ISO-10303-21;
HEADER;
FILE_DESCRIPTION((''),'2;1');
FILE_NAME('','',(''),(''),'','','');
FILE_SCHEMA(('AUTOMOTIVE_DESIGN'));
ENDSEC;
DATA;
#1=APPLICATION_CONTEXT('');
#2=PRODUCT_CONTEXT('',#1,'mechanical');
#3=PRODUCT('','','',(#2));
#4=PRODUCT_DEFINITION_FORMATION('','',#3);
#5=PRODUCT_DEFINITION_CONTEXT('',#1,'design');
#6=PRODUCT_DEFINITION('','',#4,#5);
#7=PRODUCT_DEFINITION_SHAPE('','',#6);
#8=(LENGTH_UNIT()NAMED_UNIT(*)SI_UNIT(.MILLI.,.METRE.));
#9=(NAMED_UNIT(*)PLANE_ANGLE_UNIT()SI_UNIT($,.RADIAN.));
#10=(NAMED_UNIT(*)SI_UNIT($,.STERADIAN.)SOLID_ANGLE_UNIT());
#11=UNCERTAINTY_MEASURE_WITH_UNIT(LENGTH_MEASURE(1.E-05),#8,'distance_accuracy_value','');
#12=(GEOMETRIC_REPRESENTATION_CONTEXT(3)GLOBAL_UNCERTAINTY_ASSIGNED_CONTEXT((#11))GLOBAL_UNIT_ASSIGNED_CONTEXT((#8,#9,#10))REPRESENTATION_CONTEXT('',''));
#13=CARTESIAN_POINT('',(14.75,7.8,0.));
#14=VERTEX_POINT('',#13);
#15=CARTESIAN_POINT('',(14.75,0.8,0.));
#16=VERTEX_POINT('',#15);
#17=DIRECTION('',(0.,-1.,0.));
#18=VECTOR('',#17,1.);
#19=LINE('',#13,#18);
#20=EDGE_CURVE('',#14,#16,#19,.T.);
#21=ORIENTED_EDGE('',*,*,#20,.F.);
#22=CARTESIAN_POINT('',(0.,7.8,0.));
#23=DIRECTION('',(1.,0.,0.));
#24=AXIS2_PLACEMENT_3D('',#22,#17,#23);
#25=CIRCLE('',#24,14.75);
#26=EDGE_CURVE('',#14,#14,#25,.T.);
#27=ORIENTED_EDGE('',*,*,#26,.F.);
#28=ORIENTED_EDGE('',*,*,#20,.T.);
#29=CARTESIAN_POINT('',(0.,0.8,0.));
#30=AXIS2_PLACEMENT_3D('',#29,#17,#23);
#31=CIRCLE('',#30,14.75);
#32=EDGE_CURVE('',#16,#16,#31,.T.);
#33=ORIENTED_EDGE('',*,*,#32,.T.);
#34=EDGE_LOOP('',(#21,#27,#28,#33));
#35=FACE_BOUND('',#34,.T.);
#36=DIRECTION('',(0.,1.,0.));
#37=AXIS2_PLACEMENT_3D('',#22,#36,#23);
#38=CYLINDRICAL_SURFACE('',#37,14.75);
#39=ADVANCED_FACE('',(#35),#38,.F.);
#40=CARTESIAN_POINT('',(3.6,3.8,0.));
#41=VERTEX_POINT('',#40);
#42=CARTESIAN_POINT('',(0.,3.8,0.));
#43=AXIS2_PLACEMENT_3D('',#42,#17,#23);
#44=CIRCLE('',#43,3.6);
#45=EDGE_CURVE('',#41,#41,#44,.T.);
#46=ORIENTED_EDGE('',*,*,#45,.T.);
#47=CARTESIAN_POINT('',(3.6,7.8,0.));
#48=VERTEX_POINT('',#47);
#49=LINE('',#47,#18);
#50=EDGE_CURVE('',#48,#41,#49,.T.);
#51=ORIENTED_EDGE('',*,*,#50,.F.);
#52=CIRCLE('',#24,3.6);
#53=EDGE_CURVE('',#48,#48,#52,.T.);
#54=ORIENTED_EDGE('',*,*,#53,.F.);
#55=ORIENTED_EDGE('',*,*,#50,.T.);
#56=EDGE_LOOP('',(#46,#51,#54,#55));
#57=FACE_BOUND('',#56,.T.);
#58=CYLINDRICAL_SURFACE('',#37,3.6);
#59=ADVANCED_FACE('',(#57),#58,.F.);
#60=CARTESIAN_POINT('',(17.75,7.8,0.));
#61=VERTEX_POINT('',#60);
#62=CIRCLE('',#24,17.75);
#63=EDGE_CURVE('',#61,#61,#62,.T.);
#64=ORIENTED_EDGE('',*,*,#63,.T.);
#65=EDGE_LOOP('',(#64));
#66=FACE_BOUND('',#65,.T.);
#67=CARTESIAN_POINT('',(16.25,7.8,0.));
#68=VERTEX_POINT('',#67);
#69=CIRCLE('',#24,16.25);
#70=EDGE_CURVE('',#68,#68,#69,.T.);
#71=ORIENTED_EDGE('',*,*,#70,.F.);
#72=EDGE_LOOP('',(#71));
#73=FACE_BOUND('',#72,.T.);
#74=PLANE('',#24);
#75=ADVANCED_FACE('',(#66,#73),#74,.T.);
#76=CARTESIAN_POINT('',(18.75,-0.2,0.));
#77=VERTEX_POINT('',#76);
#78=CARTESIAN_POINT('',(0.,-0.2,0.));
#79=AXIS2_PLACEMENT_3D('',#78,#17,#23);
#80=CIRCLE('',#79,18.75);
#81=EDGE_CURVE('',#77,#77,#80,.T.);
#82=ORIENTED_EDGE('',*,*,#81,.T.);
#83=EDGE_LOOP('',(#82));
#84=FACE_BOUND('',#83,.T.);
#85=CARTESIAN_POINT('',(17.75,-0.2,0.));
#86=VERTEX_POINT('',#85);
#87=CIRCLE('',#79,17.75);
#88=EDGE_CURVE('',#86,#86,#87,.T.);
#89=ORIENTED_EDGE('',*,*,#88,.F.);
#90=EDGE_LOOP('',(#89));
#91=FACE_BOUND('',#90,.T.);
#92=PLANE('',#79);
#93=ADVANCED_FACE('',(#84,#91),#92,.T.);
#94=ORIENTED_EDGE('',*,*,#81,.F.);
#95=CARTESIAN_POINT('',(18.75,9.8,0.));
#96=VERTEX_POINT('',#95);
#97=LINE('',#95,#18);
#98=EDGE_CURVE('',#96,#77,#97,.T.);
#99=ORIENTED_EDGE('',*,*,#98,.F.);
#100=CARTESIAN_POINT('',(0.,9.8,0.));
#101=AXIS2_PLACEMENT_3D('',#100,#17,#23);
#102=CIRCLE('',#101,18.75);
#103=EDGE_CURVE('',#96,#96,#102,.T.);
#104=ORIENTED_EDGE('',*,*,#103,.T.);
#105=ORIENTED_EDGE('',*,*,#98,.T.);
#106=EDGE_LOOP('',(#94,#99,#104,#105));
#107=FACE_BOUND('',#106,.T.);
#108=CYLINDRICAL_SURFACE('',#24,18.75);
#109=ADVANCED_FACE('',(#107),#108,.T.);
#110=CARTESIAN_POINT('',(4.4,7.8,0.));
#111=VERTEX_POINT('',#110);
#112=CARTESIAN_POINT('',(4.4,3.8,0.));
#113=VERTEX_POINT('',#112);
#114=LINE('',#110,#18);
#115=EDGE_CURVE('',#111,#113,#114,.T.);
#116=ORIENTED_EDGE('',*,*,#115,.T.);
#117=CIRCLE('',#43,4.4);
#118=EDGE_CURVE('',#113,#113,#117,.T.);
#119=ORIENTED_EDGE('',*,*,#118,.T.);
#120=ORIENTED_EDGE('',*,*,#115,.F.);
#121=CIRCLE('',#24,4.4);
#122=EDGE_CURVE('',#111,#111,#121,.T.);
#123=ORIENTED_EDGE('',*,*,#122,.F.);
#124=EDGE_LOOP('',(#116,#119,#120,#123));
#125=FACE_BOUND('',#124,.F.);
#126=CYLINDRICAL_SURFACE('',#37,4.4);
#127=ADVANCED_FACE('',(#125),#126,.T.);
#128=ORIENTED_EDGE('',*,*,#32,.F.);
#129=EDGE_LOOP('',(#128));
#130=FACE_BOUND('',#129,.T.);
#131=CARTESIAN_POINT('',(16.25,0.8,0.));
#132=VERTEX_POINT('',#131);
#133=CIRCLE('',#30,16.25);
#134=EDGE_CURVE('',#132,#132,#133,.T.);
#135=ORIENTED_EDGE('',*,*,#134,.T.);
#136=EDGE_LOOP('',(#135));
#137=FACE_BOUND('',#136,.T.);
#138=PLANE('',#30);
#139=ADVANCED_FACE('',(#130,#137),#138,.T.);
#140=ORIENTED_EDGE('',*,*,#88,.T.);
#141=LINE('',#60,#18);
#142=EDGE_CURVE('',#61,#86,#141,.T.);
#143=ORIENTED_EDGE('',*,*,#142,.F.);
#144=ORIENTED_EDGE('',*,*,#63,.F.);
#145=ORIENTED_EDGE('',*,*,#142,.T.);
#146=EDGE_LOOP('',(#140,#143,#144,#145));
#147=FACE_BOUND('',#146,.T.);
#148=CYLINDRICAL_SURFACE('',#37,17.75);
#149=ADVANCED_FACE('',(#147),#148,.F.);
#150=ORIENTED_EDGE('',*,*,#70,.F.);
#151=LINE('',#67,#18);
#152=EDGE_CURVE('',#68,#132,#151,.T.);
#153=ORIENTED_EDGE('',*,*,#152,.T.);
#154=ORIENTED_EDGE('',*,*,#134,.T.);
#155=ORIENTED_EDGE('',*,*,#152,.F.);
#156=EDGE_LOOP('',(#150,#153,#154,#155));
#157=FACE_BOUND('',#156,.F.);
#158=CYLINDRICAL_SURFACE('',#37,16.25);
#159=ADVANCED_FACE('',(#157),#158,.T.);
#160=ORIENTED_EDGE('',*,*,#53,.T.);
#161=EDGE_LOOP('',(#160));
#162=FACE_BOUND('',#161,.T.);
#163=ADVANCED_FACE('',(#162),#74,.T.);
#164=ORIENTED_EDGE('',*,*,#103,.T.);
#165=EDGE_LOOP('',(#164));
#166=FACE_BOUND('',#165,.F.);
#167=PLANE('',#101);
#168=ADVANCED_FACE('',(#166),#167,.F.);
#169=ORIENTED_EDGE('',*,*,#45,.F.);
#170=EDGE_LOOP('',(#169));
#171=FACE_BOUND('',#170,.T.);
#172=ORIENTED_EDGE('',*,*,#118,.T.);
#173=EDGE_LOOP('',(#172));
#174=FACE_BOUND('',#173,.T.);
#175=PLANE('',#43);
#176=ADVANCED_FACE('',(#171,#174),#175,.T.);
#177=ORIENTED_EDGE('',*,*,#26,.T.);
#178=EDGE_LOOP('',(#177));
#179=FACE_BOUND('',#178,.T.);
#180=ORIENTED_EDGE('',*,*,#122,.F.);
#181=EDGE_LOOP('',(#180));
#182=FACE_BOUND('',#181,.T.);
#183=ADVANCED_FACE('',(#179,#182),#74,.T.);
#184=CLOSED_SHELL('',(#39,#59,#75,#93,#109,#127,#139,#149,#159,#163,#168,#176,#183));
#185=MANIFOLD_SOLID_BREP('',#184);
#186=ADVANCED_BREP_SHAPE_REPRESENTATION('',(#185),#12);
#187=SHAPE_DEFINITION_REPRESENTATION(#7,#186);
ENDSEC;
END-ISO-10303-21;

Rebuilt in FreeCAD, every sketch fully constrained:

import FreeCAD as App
import Part
import Sketcher
from FreeCAD import Vector

doc = App.newDocument("Part")
body = doc.addObject("PartDesign::Body", "Body")

sketch1 = body.newObject("Sketcher::SketchObject", "Sketch")
sketch1.AttachmentSupport = (doc.getObject("XZ_Plane"), [""])
sketch1.MapMode = "FlatFace"
sketch1.AttachmentOffset = App.Placement(Vector(0, 0, -7.8), App.Rotation())
sketch1.addGeometry(Part.Circle(Vector(0, 0, 0), Vector(0, 0, 1), 19), False)
sketch1.addConstraint([
    Sketcher.Constraint("Coincident", 0, 3, -1, 1),
    Sketcher.Constraint("Diameter", 0, 37.5),
])
pad1 = body.newObject("PartDesign::Pad", "Pad")
pad1.Profile = sketch1
pad1.Length = 2
pad1.Reversed = True
body2 = doc.addObject("PartDesign::Body", "Body001")

sketch2 = body2.newObject("Sketcher::SketchObject", "Sketch001")
sketch2.AttachmentSupport = (doc.getObject("XZ_Plane001"), [""])
sketch2.MapMode = "FlatFace"
sketch2.AttachmentOffset = App.Placement(Vector(0, 0, -7.8), App.Rotation())
sketch2.addGeometry([
    Part.Circle(Vector(0, 0, 0), Vector(0, 0, 1), 4.4),
    Part.Circle(Vector(0, 0, 0), Vector(0, 0, 1), 3.6),
], False)
sketch2.addConstraint([
    Sketcher.Constraint("Coincident", 0, 3, -1, 1),
    Sketcher.Constraint("Coincident", 1, 3, -1, 1),
    Sketcher.Constraint("Diameter", 0, 8.8),
    Sketcher.Constraint("Diameter", 1, 7.2),
])
pad2 = body2.newObject("PartDesign::Pad", "Pad001")
pad2.Profile = sketch2
pad2.Length = 4
body3 = doc.addObject("PartDesign::Body", "Body002")

sketch3 = body3.newObject("Sketcher::SketchObject", "Sketch002")
sketch3.AttachmentSupport = (doc.getObject("XZ_Plane002"), [""])
sketch3.MapMode = "FlatFace"
sketch3.AttachmentOffset = App.Placement(Vector(0, 0, -7.8), App.Rotation())
sketch3.addGeometry([
    Part.Circle(Vector(0, 0, 0), Vector(0, 0, 1), 16),
    Part.Circle(Vector(0, 0, 0), Vector(0, 0, 1), 15),
], False)
sketch3.addConstraint([
    Sketcher.Constraint("Coincident", 0, 3, -1, 1),
    Sketcher.Constraint("Coincident", 1, 3, -1, 1),
    Sketcher.Constraint("Diameter", 0, 32.5),
    Sketcher.Constraint("Diameter", 1, 29.5),
])
pad3 = body3.newObject("PartDesign::Pad", "Pad002")
pad3.Profile = sketch3
pad3.Length = 7
body4 = doc.addObject("PartDesign::Body", "Body003")

sketch4 = body4.newObject("Sketcher::SketchObject", "Sketch003")
sketch4.AttachmentSupport = (doc.getObject("XZ_Plane003"), [""])
sketch4.MapMode = "FlatFace"
sketch4.AttachmentOffset = App.Placement(Vector(0, 0, -7.8), App.Rotation())
sketch4.addGeometry([
    Part.Circle(Vector(0, 0, 0), Vector(0, 0, 1), 19),
    Part.Circle(Vector(0, 0, 0), Vector(0, 0, 1), 18),
], False)
sketch4.addConstraint([
    Sketcher.Constraint("Coincident", 0, 3, -1, 1),
    Sketcher.Constraint("Coincident", 1, 3, -1, 1),
    Sketcher.Constraint("Diameter", 0, 37.5),
    Sketcher.Constraint("Diameter", 1, 35.5),
])
pad4 = body4.newObject("PartDesign::Pad", "Pad003")
pad4.Profile = sketch4
pad4.Length = 8
doc.recompute()

boolean = body4.newObject("PartDesign::Boolean", "Boolean")
boolean.Type = "Fuse"
boolean.addObjects([body])
doc.recompute()

boolean2 = body4.newObject("PartDesign::Boolean", "Boolean001")
boolean2.Type = "Fuse"
boolean2.addObjects([body2])
doc.recompute()

boolean3 = body4.newObject("PartDesign::Boolean", "Boolean002")
boolean3.Type = "Fuse"
boolean3.addObjects([body3])

doc.recompute()
